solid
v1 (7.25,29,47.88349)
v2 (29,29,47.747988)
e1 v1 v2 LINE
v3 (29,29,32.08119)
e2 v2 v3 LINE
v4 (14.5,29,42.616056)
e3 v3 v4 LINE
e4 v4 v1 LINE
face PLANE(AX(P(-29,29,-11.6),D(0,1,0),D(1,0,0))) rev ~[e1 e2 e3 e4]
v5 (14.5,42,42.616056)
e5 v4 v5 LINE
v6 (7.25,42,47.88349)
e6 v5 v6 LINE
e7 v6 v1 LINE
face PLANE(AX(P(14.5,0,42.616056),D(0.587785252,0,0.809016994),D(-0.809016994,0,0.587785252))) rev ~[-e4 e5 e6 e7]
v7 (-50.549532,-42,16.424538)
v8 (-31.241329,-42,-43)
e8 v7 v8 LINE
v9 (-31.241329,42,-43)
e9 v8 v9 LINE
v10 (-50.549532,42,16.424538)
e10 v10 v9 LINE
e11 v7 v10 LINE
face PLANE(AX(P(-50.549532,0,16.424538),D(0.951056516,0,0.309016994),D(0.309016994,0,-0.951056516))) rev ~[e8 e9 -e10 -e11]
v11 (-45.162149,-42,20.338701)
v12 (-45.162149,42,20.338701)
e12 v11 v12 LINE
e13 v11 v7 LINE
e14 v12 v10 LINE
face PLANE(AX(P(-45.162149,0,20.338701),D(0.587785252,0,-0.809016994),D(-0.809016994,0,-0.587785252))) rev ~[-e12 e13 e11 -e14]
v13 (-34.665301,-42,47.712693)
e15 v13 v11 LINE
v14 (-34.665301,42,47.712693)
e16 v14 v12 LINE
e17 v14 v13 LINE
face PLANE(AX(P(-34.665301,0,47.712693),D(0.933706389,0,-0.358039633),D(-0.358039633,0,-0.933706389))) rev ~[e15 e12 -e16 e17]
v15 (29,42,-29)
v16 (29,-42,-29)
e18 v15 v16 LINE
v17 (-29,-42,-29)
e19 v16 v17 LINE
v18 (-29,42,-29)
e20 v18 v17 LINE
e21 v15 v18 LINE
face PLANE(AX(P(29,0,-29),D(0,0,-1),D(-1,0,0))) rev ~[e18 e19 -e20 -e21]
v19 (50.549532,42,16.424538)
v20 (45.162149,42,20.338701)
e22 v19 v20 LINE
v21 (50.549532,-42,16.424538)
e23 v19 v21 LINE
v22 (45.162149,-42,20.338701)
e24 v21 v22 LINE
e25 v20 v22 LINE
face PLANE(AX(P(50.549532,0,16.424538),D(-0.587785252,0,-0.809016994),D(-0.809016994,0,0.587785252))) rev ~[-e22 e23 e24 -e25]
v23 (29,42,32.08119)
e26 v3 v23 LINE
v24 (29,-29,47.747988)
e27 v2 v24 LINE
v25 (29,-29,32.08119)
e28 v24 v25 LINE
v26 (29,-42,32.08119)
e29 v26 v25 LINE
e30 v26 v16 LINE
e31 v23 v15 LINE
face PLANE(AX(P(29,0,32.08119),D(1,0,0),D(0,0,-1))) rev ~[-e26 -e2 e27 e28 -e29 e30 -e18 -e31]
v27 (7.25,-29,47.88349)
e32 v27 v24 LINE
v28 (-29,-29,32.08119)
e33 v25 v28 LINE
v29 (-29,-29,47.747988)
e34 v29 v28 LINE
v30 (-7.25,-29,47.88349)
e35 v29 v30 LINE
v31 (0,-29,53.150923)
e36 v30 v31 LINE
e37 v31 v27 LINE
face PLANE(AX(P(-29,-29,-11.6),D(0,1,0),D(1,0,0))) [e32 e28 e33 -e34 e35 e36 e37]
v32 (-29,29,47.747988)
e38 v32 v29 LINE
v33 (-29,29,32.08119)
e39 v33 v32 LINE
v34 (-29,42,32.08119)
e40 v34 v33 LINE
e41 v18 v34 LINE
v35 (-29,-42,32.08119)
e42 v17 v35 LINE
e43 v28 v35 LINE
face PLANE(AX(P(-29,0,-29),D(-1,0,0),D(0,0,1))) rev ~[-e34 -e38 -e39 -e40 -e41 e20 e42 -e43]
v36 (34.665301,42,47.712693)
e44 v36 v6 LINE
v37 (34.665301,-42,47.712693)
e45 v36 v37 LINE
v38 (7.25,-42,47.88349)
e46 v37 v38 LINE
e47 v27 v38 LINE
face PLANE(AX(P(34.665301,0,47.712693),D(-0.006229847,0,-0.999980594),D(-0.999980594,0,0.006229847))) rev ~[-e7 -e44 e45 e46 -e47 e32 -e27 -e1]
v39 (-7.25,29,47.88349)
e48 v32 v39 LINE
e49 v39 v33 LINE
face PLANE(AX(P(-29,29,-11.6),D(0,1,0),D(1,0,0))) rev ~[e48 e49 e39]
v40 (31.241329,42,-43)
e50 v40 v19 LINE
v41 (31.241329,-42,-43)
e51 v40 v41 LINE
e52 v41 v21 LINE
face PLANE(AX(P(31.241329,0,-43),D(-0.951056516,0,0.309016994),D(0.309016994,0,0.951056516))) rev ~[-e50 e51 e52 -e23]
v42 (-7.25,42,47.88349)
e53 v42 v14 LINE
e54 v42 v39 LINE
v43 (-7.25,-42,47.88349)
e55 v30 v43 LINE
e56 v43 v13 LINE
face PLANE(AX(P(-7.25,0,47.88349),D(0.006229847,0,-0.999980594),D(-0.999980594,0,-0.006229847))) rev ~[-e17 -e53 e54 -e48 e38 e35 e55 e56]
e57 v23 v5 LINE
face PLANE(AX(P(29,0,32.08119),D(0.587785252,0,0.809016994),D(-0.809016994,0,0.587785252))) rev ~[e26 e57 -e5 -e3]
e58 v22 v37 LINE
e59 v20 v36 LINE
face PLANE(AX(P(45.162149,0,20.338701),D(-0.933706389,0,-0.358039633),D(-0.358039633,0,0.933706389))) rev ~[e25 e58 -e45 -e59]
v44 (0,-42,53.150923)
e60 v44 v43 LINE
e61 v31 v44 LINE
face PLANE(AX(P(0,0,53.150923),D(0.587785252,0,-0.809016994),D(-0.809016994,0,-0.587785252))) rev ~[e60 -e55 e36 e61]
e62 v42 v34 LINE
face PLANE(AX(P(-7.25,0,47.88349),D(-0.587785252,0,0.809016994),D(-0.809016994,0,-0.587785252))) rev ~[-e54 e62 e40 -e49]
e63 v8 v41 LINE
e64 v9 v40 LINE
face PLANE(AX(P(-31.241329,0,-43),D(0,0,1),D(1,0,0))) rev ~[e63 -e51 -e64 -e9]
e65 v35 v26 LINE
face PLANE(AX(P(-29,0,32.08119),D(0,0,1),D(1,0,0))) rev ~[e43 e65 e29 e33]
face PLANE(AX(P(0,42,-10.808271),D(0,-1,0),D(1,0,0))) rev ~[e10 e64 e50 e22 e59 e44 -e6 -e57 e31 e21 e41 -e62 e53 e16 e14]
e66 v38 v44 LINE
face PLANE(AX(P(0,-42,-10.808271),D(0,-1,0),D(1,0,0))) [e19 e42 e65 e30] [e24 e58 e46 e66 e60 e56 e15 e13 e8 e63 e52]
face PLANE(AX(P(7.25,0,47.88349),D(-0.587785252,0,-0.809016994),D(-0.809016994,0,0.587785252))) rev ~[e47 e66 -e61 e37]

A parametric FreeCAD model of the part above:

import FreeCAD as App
import Part
import Sketcher
from FreeCAD import Vector
Q = App.Units.Quantity

doc = App.newDocument("Part")
params = doc.addObject("Spreadsheet::Sheet", "Params")
for row, (alias, value) in enumerate([
    ("sketch1_width", "58 mm"),
    ("pad1_length", "42 mm"),
    ("pad1_length2", "42 mm"),
    ("sketch2_width", "58 mm"),
    ("pad2_length", "25 mm"),
    ("sketch3_width", "58 mm"),
    ("pocket1_length", "65.4 mm"),
    ("sketch4_width", "58 mm"),
    ("pocket2_length", "75.6 mm"),
    ("sketch5_height", "58 mm"),
    ("pad3_length", "53 mm"),
], start=1):
    params.set(f"A{row}", alias)
    params.set(f"B{row}", "=" + value)
    params.setAlias(f"B{row}", alias)

body = doc.addObject("PartDesign::Body", "Body")

sketch1 = doc.addObject("Sketcher::SketchObject", "Sketch")
body.addObject(sketch1)
sketch1.AttachmentSupport = (doc.XZ_Plane, [""])
sketch1.MapMode = "FlatFace"
sketch1.addGeometry(Part.LineSegment(Vector(-31, -43, 0), Vector(31, -43, 0)), False)
sketch1.addGeometry(Part.LineSegment(Vector(31, -43, 0), Vector(51, 16, 0)), False)
sketch1.addGeometry(Part.LineSegment(Vector(51, 16, 0), Vector(45, 20, 0)), False)
sketch1.addGeometry(Part.LineSegment(Vector(45, 20, 0), Vector(35, 48, 0)), False)
sketch1.addGeometry(Part.LineSegment(Vector(35, 48, 0), Vector(7, 48, 0)), False)
sketch1.addGeometry(Part.LineSegment(Vector(7, 48, 0), Vector(0, 53, 0)), False)
sketch1.addGeometry(Part.LineSegment(Vector(0, 53, 0), Vector(-7, 48, 0)), False)
sketch1.addGeometry(Part.LineSegment(Vector(-7, 48, 0), Vector(-35, 48, 0)), False)
sketch1.addGeometry(Part.LineSegment(Vector(-35, 48, 0), Vector(-45, 20, 0)), False)
sketch1.addGeometry(Part.LineSegment(Vector(-45, 20, 0), Vector(-51, 16, 0)), False)
sketch1.addGeometry(Part.LineSegment(Vector(-51, 16, 0), Vector(-31, -43, 0)), False)
sketch1.addGeometry(Part.LineSegment(Vector(29, 32, 0), Vector(29, -29, 0)), False)
sketch1.addGeometry(Part.LineSegment(Vector(29, -29, 0), Vector(-29, -29, 0)), False)
sketch1.addGeometry(Part.LineSegment(Vector(-29, -29, 0), Vector(-29, 32, 0)), False)
sketch1.addGeometry(Part.LineSegment(Vector(-29, 32, 0), Vector(29, 32, 0)), False)
sketch1.addConstraint(Sketcher.Constraint("Coincident", 0, 2, 1, 1))
sketch1.addConstraint(Sketcher.Constraint("Coincident", 1, 2, 2, 1))
sketch1.addConstraint(Sketcher.Constraint("Coincident", 2, 2, 3, 1))
sketch1.addConstraint(Sketcher.Constraint("Coincident", 3, 2, 4, 1))
sketch1.addConstraint(Sketcher.Constraint("Coincident", 4, 2, 5, 1))
sketch1.addConstraint(Sketcher.Constraint("Coincident", 5, 2, 6, 1))
sketch1.addConstraint(Sketcher.Constraint("Coincident", 6, 2, 7, 1))
sketch1.addConstraint(Sketcher.Constraint("Coincident", 7, 2, 8, 1))
sketch1.addConstraint(Sketcher.Constraint("Coincident", 8, 2, 9, 1))
sketch1.addConstraint(Sketcher.Constraint("Coincident", 9, 2, 10, 1))
sketch1.addConstraint(Sketcher.Constraint("Coincident", 10, 2, 0, 1))
sketch1.addConstraint(Sketcher.Constraint("Coincident", 11, 2, 12, 1))
sketch1.addConstraint(Sketcher.Constraint("Coincident", 12, 2, 13, 1))
sketch1.addConstraint(Sketcher.Constraint("Coincident", 13, 2, 14, 1))
sketch1.addConstraint(Sketcher.Constraint("Coincident", 14, 2, 11, 1))
sketch1.addConstraint(Sketcher.Constraint("Horizontal", 0))
sketch1.addConstraint(Sketcher.Constraint("Vertical", 11))
sketch1.addConstraint(Sketcher.Constraint("Horizontal", 12))
sketch1.addConstraint(Sketcher.Constraint("Vertical", 13))
sketch1.addConstraint(Sketcher.Constraint("Horizontal", 14))
sketch1.addConstraint(Sketcher.Constraint("Symmetric", 4, 2, 6, 2, -2))
sketch1.addConstraint(Sketcher.Constraint("Symmetric", 3, 2, 7, 2, -2))
sketch1.addConstraint(Sketcher.Constraint("Symmetric", 2, 2, 8, 2, -2))
sketch1.addConstraint(Sketcher.Constraint("Symmetric", 1, 2, 9, 2, -2))
sketch1.addConstraint(Sketcher.Constraint("PointOnObject", 5, 2, -2))
sketch1.addConstraint(Sketcher.Constraint("Parallel", 2, 5))
sketch1.addConstraint(Sketcher.Constraint("Equal", 1, 10))
sketch1.addConstraint(Sketcher.Constraint("DistanceX", 12, 2, 12, 1, Q("58 mm")))
sketch1.addConstraint(Sketcher.Constraint("Angle", 1, Q("72 deg")))
sketch1.addConstraint(Sketcher.Constraint("Angle", 2, Q("144 deg")))
sketch1.addConstraint(Sketcher.Constraint("DistanceY", 0, 2, -1, 1, Q("43 mm")))
sketch1.addConstraint(Sketcher.Constraint("DistanceX", -1, 1, 11, 2, Q("29 mm")))
sketch1.addConstraint(Sketcher.Constraint("DistanceY", 11, 2, -1, 1, Q("29 mm")))
sketch1.addConstraint(Sketcher.Constraint("DistanceX", 6, 2, 4, 2, Q("14.5 mm")))
sketch1.addConstraint(Sketcher.Constraint("DistanceY", 11, 2, 11, 1, Q("61.08119 mm")))
sketch1.addConstraint(Sketcher.Constraint("DistanceY", -1, 1, 2, 2, Q("20.338701 mm")))
sketch1.addConstraint(Sketcher.Constraint("DistanceX", -1, 1, 3, 2, Q("34.665301 mm")))
sketch1.addConstraint(Sketcher.Constraint("DistanceY", 13, 2, 6, 2, Q("15.8023 mm")))
sketch1.addConstraint(Sketcher.Constraint("Distance", 2, Q("6.659172 mm")))
sketch1.addConstraint(Sketcher.Constraint("Distance", 3, Q("29.317559 mm")))
sketch1.addConstraint(Sketcher.Constraint("DistanceX", 0, 1, 0, 2, Q("62.482657 mm")))
sketch1.setExpression("Constraints[27]", "Params.sketch1_width")
pad1 = doc.addObject("PartDesign::Pad", "Pad")
body.addObject(pad1)
pad1.Profile = sketch1
pad1.Type = "TwoLengths"
pad1.setExpression("Length", "Params.pad1_length")
pad1.setExpression("Length2", "Params.pad1_length2")
pad1.Reversed = True

sketch2 = doc.addObject("Sketcher::SketchObject", "Sketch001")
body.addObject(sketch2)
sketch2.AttachmentSupport = (doc.XZ_Plane, [""])
sketch2.MapMode = "FlatFace"
sketch2.addGeometry(Part.LineSegment(Vector(-31, -43, 0), Vector(31, -43, 0)), False)
sketch2.addGeometry(Part.LineSegment(Vector(31, -43, 0), Vector(51, 16, 0)), False)
sketch2.addGeometry(Part.LineSegment(Vector(51, 16, 0), Vector(45, 20, 0)), False)
sketch2.addGeometry(Part.LineSegment(Vector(45, 20, 0), Vector(35, 48, 0)), False)
sketch2.addGeometry(Part.LineSegment(Vector(35, 48, 0), Vector(7, 48, 0)), False)
sketch2.addGeometry(Part.LineSegment(Vector(7, 48, 0), Vector(0, 53, 0)), False)
sketch2.addGeometry(Part.LineSegment(Vector(0, 53, 0), Vector(-7, 48, 0)), False)
sketch2.addGeometry(Part.LineSegment(Vector(-7, 48, 0), Vector(-35, 48, 0)), False)
sketch2.addGeometry(Part.LineSegment(Vector(-35, 48, 0), Vector(-45, 20, 0)), False)
sketch2.addGeometry(Part.LineSegment(Vector(-45, 20, 0), Vector(-51, 16, 0)), False)
sketch2.addGeometry(Part.LineSegment(Vector(-51, 16, 0), Vector(-31, -43, 0)), False)
sketch2.addGeometry(Part.LineSegment(Vector(29, 32, 0), Vector(29, -29, 0)), False)
sketch2.addGeometry(Part.LineSegment(Vector(29, -29, 0), Vector(-29, -29, 0)), False)
sketch2.addGeometry(Part.LineSegment(Vector(-29, -29, 0), Vector(-29, 32, 0)), False)
sketch2.addGeometry(Part.LineSegment(Vector(-29, 32, 0), Vector(29, 32, 0)), False)
sketch2.addConstraint(Sketcher.Constraint("Coincident", 0, 2, 1, 1))
sketch2.addConstraint(Sketcher.Constraint("Coincident", 1, 2, 2, 1))
sketch2.addConstraint(Sketcher.Constraint("Coincident", 2, 2, 3, 1))
sketch2.addConstraint(Sketcher.Constraint("Coincident", 3, 2, 4, 1))
sketch2.addConstraint(Sketcher.Constraint("Coincident", 4, 2, 5, 1))
sketch2.addConstraint(Sketcher.Constraint("Coincident", 5, 2, 6, 1))
sketch2.addConstraint(Sketcher.Constraint("Coincident", 6, 2, 7, 1))
sketch2.addConstraint(Sketcher.Constraint("Coincident", 7, 2, 8, 1))
sketch2.addConstraint(Sketcher.Constraint("Coincident", 8, 2, 9, 1))
sketch2.addConstraint(Sketcher.Constraint("Coincident", 9, 2, 10, 1))
sketch2.addConstraint(Sketcher.Constraint("Coincident", 10, 2, 0, 1))
sketch2.addConstraint(Sketcher.Constraint("Coincident", 11, 2, 12, 1))
sketch2.addConstraint(Sketcher.Constraint("Coincident", 12, 2, 13, 1))
sketch2.addConstraint(Sketcher.Constraint("Coincident", 13, 2, 14, 1))
sketch2.addConstraint(Sketcher.Constraint("Coincident", 14, 2, 11, 1))
sketch2.addConstraint(Sketcher.Constraint("Horizontal", 0))
sketch2.addConstraint(Sketcher.Constraint("Vertical", 11))
sketch2.addConstraint(Sketcher.Constraint("Horizontal", 12))
sketch2.addConstraint(Sketcher.Constraint("Vertical", 13))
sketch2.addConstraint(Sketcher.Constraint("Horizontal", 14))
sketch2.addConstraint(Sketcher.Constraint("Symmetric", 4, 2, 6, 2, -2))
sketch2.addConstraint(Sketcher.Constraint("Symmetric", 3, 2, 7, 2, -2))
sketch2.addConstraint(Sketcher.Constraint("Symmetric", 2, 2, 8, 2, -2))
sketch2.addConstraint(Sketcher.Constraint("Symmetric", 1, 2, 9, 2, -2))
sketch2.addConstraint(Sketcher.Constraint("PointOnObject", 5, 2, -2))
sketch2.addConstraint(Sketcher.Constraint("Parallel", 2, 5))
sketch2.addConstraint(Sketcher.Constraint("Equal", 1, 10))
sketch2.addConstraint(Sketcher.Constraint("DistanceX", 12, 2, 12, 1, Q("58 mm")))
sketch2.addConstraint(Sketcher.Constraint("Angle", 1, Q("72 deg")))
sketch2.addConstraint(Sketcher.Constraint("Angle", 2, Q("144 deg")))
sketch2.addConstraint(Sketcher.Constraint("DistanceY", 0, 2, -1, 1, Q("43 mm")))
sketch2.addConstraint(Sketcher.Constraint("DistanceX", -1, 1, 11, 2, Q("29 mm")))
sketch2.addConstraint(Sketcher.Constraint("DistanceY", 11, 2, -1, 1, Q("29 mm")))
sketch2.addConstraint(Sketcher.Constraint("DistanceX", 6, 2, 4, 2, Q("14.5 mm")))
sketch2.addConstraint(Sketcher.Constraint("DistanceY", 11, 2, 11, 1, Q("61.08119 mm")))
sketch2.addConstraint(Sketcher.Constraint("DistanceY", -1, 1, 2, 2, Q("20.338701 mm")))
sketch2.addConstraint(Sketcher.Constraint("DistanceX", -1, 1, 3, 2, Q("34.665301 mm")))
sketch2.addConstraint(Sketcher.Constraint("DistanceY", 13, 2, 6, 2, Q("15.8023 mm")))
sketch2.addConstraint(Sketcher.Constraint("Distance", 2, Q("6.659172 mm")))
sketch2.addConstraint(Sketcher.Constraint("Distance", 3, Q("29.317559 mm")))
sketch2.addConstraint(Sketcher.Constraint("DistanceX", 0, 1, 0, 2, Q("62.482657 mm")))
sketch2.setExpression("Constraints[27]", "Params.sketch2_width")
pad2 = doc.addObject("PartDesign::Pad", "Pad001")
body.addObject(pad2)
pad2.Profile = sketch2
pad2.setExpression("Length", "Params.pad2_length")

sketch3 = doc.addObject("Sketcher::SketchObject", "Sketch002")
body.addObject(sketch3)
sketch3.AttachmentSupport = (doc.XZ_Plane, [""])
sketch3.MapMode = "FlatFace"
sketch3.addGeometry(Part.LineSegment(Vector(-7, 48, 0), Vector(-29, 32, 0)), False)
sketch3.addGeometry(Part.LineSegment(Vector(-29, 32, 0), Vector(29, 32, 0)), False)
sketch3.addGeometry(Part.LineSegment(Vector(29, 32, 0), Vector(14, 43, 0)), False)
sketch3.addGeometry(Part.LineSegment(Vector(14, 43, 0), Vector(7, 48, 0)), False)
sketch3.addGeometry(Part.LineSegment(Vector(7, 48, 0), Vector(0, 53, 0)), False)
sketch3.addGeometry(Part.LineSegment(Vector(0, 53, 0), Vector(-7, 48, 0)), False)
sketch3.addConstraint(Sketcher.Constraint("Coincident", 0, 2, 1, 1))
sketch3.addConstraint(Sketcher.Constraint("Coincident", 1, 2, 2, 1))
sketch3.addConstraint(Sketcher.Constraint("Coincident", 2, 2, 3, 1))
sketch3.addConstraint(Sketcher.Constraint("Coincident", 3, 2, 4, 1))
sketch3.addConstraint(Sketcher.Constraint("Coincident", 4, 2, 5, 1))
sketch3.addConstraint(Sketcher.Constraint("Coincident", 5, 2, 0, 1))
sketch3.addConstraint(Sketcher.Constraint("Horizontal", 1))
sketch3.addConstraint(Sketcher.Constraint("Symmetric", 3, 2, 5, 2, -2))
sketch3.addConstraint(Sketcher.Constraint("PointOnObject", 4, 2, -2))
sketch3.addConstraint(Sketcher.Constraint("Parallel", 2, 3))
sketch3.addConstraint(Sketcher.Constraint("Parallel", 3, 4))
sketch3.addConstraint(Sketcher.Constraint("Parallel", 0, 5))
sketch3.addConstraint(Sketcher.Constraint("Equal", 3, 4))
sketch3.addConstraint(Sketcher.Constraint("DistanceX", 1, 1, 1, 2, Q("58 mm")))
sketch3.addConstraint(Sketcher.Constraint("Angle", 0, Q("-144 deg")))
sketch3.addConstraint(Sketcher.Constraint("DistanceX", -1, 1, 2, 2, Q("14.5 mm")))
sketch3.addConstraint(Sketcher.Constraint("DistanceY", -1, 1, 0, 2, Q("32.08119 mm")))
sketch3.setExpression("Constraints[13]", "Params.sketch3_width")
pocket1 = doc.addObject("PartDesign::Pocket", "Pocket")
body.addObject(pocket1)
pocket1.Profile = sketch3
pocket1.setExpression("Length", "Params.pocket1_length")

sketch4 = doc.addObject("Sketcher::SketchObject", "Sketch003")
body.addObject(sketch4)
sketch4.AttachmentSupport = (doc.XY_Plane, [""])
sketch4.MapMode = "FlatFace"
sketch4.AttachmentOffset = App.Placement(Vector(0, 0, -11.6), App.Rotation())
sketch4.addGeometry(Part.LineSegment(Vector(-29, -29, 0), Vector(-29, 29, 0)), False)
sketch4.addGeometry(Part.LineSegment(Vector(-29, 29, 0), Vector(29, 29, 0)), False)
sketch4.addGeometry(Part.LineSegment(Vector(29, 29, 0), Vector(29, -29, 0)), False)
sketch4.addGeometry(Part.LineSegment(Vector(29, -29, 0), Vector(-29, -29, 0)), False)
sketch4.addConstraint(Sketcher.Constraint("Coincident", 0, 2, 1, 1))
sketch4.addConstraint(Sketcher.Constraint("Coincident", 1, 2, 2, 1))
sketch4.addConstraint(Sketcher.Constraint("Coincident", 2, 2, 3, 1))
sketch4.addConstraint(Sketcher.Constraint("Coincident", 3, 2, 0, 1))
sketch4.addConstraint(Sketcher.Constraint("Vertical", 0))
sketch4.addConstraint(Sketcher.Constraint("Horizontal", 1))
sketch4.addConstraint(Sketcher.Constraint("Vertical", 2))
sketch4.addConstraint(Sketcher.Constraint("Horizontal", 3))
sketch4.addConstraint(Sketcher.Constraint("Symmetric", 0, 2, 2, 2, -1, 1))
sketch4.addConstraint(Sketcher.Constraint("Equal", 3, 0))
sketch4.addConstraint(Sketcher.Constraint("DistanceX", 1, 1, 1, 2, Q("58 mm")))
sketch4.setExpression("Constraints[10]", "Params.sketch4_width")
pocket2 = doc.addObject("PartDesign::Pocket", "Pocket001")
body.addObject(pocket2)
pocket2.Profile = sketch4
pocket2.setExpression("Length", "Params.pocket2_length")
pocket2.Reversed = True

sketch5 = doc.addObject("Sketcher::SketchObject", "Sketch004")
body.addObject(sketch5)
sketch5.AttachmentSupport = (doc.XY_Plane, [""])
sketch5.MapMode = "FlatFace"
sketch5.AttachmentOffset = App.Placement(Vector(0, 0, -18), App.Rotation())
sketch5.addGeometry(Part.LineSegment(Vector(-31.2, -29, 0), Vector(-31.2, 29, 0)), False)
sketch5.addGeometry(Part.LineSegment(Vector(-31.2, 29, 0), Vector(-29, 29, 0)), False)
sketch5.addGeometry(Part.LineSegment(Vector(-29, 29, 0), Vector(-29, -29, 0)), False)
sketch5.addGeometry(Part.LineSegment(Vector(-29, -29, 0), Vector(-31.2, -29, 0)), False)
sketch5.addGeometry(Part.LineSegment(Vector(29, -29, 0), Vector(29, 29, 0)), False)
sketch5.addGeometry(Part.LineSegment(Vector(29, 29, 0), Vector(31.2, 29, 0)), False)
sketch5.addGeometry(Part.LineSegment(Vector(31.2, 29, 0), Vector(31.2, -29, 0)), False)
sketch5.addGeometry(Part.LineSegment(Vector(31.2, -29, 0), Vector(29, -29, 0)), False)
sketch5.addConstraint(Sketcher.Constraint("Coincident", 0, 2, 1, 1))
sketch5.addConstraint(Sketcher.Constraint("Coincident", 1, 2, 2, 1))
sketch5.addConstraint(Sketcher.Constraint("Coincident", 2, 2, 3, 1))
sketch5.addConstraint(Sketcher.Constraint("Coincident", 3, 2, 0, 1))
sketch5.addConstraint(Sketcher.Constraint("Coincident", 4, 2, 5, 1))
sketch5.addConstraint(Sketcher.Constraint("Coincident", 5, 2, 6, 1))
sketch5.addConstraint(Sketcher.Constraint("Coincident", 6, 2, 7, 1))
sketch5.addConstraint(Sketcher.Constraint("Coincident", 7, 2, 4, 1))
sketch5.addConstraint(Sketcher.Constraint("Vertical", 0))
sketch5.addConstraint(Sketcher.Constraint("Horizontal", 1))
sketch5.addConstraint(Sketcher.Constraint("Vertical", 2))
sketch5.addConstraint(Sketcher.Constraint("Horizontal", 3))
sketch5.addConstraint(Sketcher.Constraint("Vertical", 4))
sketch5.addConstraint(Sketcher.Constraint("Horizontal", 5))
sketch5.addConstraint(Sketcher.Constraint("Vertical", 6))
sketch5.addConstraint(Sketcher.Constraint("Horizontal", 7))
sketch5.addConstraint(Sketcher.Constraint("Symmetric", 2, 2, 4, 2, -1, 1))
sketch5.addConstraint(Sketcher.Constraint("Symmetric", 0, 2, 6, 2, -1, 1))
sketch5.addConstraint(Sketcher.Constraint("Horizontal", 1, 2, 4, 2))
sketch5.addConstraint(Sketcher.Constraint("DistanceY", 0, 1, 0, 2, Q("58 mm")))
sketch5.addConstraint(Sketcher.Constraint("DistanceX", 1, 2, -1, 1, Q("29 mm")))
sketch5.addConstraint(Sketcher.Constraint("DistanceX", 1, 1, 1, 2, Q("2.241329 mm")))
sketch5.setExpression("Constraints[19]", "Params.sketch5_height")
pad3 = doc.addObject("PartDesign::Pad", "Pad002")
body.addObject(pad3)
pad3.Profile = sketch5
pad3.setExpression("Length", "Params.pad3_length")

doc.recompute()
